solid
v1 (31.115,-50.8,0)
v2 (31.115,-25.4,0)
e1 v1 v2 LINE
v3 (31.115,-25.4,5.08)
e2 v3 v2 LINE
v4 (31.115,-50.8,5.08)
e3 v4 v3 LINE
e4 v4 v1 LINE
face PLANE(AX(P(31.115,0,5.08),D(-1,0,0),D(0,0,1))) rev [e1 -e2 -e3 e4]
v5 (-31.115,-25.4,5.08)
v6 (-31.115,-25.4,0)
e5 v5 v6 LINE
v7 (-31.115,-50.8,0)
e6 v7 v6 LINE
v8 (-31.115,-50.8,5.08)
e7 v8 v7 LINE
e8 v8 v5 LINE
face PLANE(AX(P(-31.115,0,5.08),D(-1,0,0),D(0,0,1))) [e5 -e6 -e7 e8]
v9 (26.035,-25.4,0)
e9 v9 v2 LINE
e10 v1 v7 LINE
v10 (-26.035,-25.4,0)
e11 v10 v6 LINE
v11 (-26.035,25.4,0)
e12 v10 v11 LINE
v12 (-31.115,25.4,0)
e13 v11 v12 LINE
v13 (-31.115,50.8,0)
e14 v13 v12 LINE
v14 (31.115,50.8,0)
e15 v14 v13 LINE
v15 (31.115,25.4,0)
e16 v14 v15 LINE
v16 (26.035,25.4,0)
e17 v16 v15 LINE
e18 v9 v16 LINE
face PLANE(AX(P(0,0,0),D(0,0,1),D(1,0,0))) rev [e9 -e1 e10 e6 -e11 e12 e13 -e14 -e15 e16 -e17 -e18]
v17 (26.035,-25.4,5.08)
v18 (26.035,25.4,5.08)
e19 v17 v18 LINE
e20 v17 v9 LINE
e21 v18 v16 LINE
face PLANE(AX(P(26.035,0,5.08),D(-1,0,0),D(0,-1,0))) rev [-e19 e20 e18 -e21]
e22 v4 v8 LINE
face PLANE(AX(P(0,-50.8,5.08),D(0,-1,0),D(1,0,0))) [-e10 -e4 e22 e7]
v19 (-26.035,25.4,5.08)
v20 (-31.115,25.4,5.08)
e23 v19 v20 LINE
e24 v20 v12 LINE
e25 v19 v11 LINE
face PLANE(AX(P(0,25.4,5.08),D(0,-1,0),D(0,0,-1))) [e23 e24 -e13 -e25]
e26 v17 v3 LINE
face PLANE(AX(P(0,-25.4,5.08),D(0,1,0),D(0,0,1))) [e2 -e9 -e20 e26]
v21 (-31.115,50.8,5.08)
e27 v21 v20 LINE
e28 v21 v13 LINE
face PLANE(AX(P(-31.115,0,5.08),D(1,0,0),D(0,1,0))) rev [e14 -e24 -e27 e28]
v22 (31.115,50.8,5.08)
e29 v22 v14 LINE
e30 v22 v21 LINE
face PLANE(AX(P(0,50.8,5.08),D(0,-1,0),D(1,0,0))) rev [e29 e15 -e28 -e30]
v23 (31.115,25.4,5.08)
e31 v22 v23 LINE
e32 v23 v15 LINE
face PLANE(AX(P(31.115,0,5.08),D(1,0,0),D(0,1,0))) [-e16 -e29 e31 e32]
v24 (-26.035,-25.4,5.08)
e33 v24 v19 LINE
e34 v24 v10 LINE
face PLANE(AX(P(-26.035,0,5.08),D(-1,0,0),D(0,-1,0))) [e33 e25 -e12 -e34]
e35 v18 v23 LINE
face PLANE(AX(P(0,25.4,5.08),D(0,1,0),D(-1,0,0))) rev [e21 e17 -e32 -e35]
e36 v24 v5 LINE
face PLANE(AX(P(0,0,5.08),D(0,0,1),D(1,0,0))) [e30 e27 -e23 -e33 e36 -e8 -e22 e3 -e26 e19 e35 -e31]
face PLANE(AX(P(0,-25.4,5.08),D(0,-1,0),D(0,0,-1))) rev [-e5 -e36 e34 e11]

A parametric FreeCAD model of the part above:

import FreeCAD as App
import Part
import Sketcher
Q = App.Units.Quantity

doc = App.newDocument("Part")
body = doc.addObject("PartDesign::Body", "Body")

sketch1 = doc.addObject("Sketcher::SketchObject", "Sketch")
body.addObject(sketch1)
sketch1.AttachmentSupport = (doc.XY_Plane, [""])
sketch1.MapMode = "FlatFace"
sketch1.addGeometry([
    Part.LineSegment(App.Vector(-26, 25, 0), App.Vector(-26, -25, 0)),
    Part.LineSegment(App.Vector(-26, -25, 0), App.Vector(-31, -25, 0)),
    Part.LineSegment(App.Vector(-31, -25, 0), App.Vector(-31, -51, 0)),
    Part.LineSegment(App.Vector(-31, -51, 0), App.Vector(31, -51, 0)),
    Part.LineSegment(App.Vector(31, -51, 0), App.Vector(31, -25, 0)),
    Part.LineSegment(App.Vector(31, -25, 0), App.Vector(26, -25, 0)),
    Part.LineSegment(App.Vector(26, -25, 0), App.Vector(26, 25, 0)),
    Part.LineSegment(App.Vector(26, 25, 0), App.Vector(31, 25, 0)),
    Part.LineSegment(App.Vector(31, 25, 0), App.Vector(31, 51, 0)),
    Part.LineSegment(App.Vector(31, 51, 0), App.Vector(-31, 51, 0)),
    Part.LineSegment(App.Vector(-31, 51, 0), App.Vector(-31, 25, 0)),
    Part.LineSegment(App.Vector(-31, 25, 0), App.Vector(-26, 25, 0)),
], False)
sketch1.addConstraint([
    Sketcher.Constraint("Coincident", 0, 2, 1, 1),
    Sketcher.Constraint("Coincident", 1, 2, 2, 1),
    Sketcher.Constraint("Coincident", 2, 2, 3, 1),
    Sketcher.Constraint("Coincident", 3, 2, 4, 1),
    Sketcher.Constraint("Coincident", 4, 2, 5, 1),
    Sketcher.Constraint("Coincident", 5, 2, 6, 1),
    Sketcher.Constraint("Coincident", 6, 2, 7, 1),
    Sketcher.Constraint("Coincident", 7, 2, 8, 1),
    Sketcher.Constraint("Coincident", 8, 2, 9, 1),
    Sketcher.Constraint("Coincident", 9, 2, 10, 1),
    Sketcher.Constraint("Coincident", 10, 2, 11, 1),
    Sketcher.Constraint("Coincident", 11, 2, 0, 1),
    Sketcher.Constraint("Vertical", 0),
    Sketcher.Constraint("Horizontal", 1),
    Sketcher.Constraint("Vertical", 2),
    Sketcher.Constraint("Horizontal", 3),
    Sketcher.Constraint("Vertical", 4),
    Sketcher.Constraint("Horizontal", 5),
    Sketcher.Constraint("Vertical", 6),
    Sketcher.Constraint("Horizontal", 7),
    Sketcher.Constraint("Vertical", 8),
    Sketcher.Constraint("Horizontal", 9),
    Sketcher.Constraint("Vertical", 10),
    Sketcher.Constraint("Horizontal", 11),
    Sketcher.Constraint("Symmetric", 0, 2, 6, 2, -1, 1),
    Sketcher.Constraint("Symmetric", 2, 2, 8, 2, -1, 1),
    Sketcher.Constraint("Symmetric", 4, 2, 10, 2, -1, 1),
    Sketcher.Constraint("Symmetric", 1, 2, 4, 2, -2),
    Sketcher.Constraint("DistanceY", 0, 2, 0, 1, Q("2 in")),
    Sketcher.Constraint("DistanceY", 2, 2, 2, 1, Q("1 in")),
    Sketcher.Constraint("DistanceX", 1, 2, 1, 1, Q("0.2 in")),
    Sketcher.Constraint("DistanceX", 3, 1, 3, 2, Q("2.45 in")),
])
pad1 = doc.addObject("PartDesign::Pad", "Pad")
body.addObject(pad1)
pad1.Profile = sketch1
pad1.Length = Q("0.2 in")

doc.recompute()
